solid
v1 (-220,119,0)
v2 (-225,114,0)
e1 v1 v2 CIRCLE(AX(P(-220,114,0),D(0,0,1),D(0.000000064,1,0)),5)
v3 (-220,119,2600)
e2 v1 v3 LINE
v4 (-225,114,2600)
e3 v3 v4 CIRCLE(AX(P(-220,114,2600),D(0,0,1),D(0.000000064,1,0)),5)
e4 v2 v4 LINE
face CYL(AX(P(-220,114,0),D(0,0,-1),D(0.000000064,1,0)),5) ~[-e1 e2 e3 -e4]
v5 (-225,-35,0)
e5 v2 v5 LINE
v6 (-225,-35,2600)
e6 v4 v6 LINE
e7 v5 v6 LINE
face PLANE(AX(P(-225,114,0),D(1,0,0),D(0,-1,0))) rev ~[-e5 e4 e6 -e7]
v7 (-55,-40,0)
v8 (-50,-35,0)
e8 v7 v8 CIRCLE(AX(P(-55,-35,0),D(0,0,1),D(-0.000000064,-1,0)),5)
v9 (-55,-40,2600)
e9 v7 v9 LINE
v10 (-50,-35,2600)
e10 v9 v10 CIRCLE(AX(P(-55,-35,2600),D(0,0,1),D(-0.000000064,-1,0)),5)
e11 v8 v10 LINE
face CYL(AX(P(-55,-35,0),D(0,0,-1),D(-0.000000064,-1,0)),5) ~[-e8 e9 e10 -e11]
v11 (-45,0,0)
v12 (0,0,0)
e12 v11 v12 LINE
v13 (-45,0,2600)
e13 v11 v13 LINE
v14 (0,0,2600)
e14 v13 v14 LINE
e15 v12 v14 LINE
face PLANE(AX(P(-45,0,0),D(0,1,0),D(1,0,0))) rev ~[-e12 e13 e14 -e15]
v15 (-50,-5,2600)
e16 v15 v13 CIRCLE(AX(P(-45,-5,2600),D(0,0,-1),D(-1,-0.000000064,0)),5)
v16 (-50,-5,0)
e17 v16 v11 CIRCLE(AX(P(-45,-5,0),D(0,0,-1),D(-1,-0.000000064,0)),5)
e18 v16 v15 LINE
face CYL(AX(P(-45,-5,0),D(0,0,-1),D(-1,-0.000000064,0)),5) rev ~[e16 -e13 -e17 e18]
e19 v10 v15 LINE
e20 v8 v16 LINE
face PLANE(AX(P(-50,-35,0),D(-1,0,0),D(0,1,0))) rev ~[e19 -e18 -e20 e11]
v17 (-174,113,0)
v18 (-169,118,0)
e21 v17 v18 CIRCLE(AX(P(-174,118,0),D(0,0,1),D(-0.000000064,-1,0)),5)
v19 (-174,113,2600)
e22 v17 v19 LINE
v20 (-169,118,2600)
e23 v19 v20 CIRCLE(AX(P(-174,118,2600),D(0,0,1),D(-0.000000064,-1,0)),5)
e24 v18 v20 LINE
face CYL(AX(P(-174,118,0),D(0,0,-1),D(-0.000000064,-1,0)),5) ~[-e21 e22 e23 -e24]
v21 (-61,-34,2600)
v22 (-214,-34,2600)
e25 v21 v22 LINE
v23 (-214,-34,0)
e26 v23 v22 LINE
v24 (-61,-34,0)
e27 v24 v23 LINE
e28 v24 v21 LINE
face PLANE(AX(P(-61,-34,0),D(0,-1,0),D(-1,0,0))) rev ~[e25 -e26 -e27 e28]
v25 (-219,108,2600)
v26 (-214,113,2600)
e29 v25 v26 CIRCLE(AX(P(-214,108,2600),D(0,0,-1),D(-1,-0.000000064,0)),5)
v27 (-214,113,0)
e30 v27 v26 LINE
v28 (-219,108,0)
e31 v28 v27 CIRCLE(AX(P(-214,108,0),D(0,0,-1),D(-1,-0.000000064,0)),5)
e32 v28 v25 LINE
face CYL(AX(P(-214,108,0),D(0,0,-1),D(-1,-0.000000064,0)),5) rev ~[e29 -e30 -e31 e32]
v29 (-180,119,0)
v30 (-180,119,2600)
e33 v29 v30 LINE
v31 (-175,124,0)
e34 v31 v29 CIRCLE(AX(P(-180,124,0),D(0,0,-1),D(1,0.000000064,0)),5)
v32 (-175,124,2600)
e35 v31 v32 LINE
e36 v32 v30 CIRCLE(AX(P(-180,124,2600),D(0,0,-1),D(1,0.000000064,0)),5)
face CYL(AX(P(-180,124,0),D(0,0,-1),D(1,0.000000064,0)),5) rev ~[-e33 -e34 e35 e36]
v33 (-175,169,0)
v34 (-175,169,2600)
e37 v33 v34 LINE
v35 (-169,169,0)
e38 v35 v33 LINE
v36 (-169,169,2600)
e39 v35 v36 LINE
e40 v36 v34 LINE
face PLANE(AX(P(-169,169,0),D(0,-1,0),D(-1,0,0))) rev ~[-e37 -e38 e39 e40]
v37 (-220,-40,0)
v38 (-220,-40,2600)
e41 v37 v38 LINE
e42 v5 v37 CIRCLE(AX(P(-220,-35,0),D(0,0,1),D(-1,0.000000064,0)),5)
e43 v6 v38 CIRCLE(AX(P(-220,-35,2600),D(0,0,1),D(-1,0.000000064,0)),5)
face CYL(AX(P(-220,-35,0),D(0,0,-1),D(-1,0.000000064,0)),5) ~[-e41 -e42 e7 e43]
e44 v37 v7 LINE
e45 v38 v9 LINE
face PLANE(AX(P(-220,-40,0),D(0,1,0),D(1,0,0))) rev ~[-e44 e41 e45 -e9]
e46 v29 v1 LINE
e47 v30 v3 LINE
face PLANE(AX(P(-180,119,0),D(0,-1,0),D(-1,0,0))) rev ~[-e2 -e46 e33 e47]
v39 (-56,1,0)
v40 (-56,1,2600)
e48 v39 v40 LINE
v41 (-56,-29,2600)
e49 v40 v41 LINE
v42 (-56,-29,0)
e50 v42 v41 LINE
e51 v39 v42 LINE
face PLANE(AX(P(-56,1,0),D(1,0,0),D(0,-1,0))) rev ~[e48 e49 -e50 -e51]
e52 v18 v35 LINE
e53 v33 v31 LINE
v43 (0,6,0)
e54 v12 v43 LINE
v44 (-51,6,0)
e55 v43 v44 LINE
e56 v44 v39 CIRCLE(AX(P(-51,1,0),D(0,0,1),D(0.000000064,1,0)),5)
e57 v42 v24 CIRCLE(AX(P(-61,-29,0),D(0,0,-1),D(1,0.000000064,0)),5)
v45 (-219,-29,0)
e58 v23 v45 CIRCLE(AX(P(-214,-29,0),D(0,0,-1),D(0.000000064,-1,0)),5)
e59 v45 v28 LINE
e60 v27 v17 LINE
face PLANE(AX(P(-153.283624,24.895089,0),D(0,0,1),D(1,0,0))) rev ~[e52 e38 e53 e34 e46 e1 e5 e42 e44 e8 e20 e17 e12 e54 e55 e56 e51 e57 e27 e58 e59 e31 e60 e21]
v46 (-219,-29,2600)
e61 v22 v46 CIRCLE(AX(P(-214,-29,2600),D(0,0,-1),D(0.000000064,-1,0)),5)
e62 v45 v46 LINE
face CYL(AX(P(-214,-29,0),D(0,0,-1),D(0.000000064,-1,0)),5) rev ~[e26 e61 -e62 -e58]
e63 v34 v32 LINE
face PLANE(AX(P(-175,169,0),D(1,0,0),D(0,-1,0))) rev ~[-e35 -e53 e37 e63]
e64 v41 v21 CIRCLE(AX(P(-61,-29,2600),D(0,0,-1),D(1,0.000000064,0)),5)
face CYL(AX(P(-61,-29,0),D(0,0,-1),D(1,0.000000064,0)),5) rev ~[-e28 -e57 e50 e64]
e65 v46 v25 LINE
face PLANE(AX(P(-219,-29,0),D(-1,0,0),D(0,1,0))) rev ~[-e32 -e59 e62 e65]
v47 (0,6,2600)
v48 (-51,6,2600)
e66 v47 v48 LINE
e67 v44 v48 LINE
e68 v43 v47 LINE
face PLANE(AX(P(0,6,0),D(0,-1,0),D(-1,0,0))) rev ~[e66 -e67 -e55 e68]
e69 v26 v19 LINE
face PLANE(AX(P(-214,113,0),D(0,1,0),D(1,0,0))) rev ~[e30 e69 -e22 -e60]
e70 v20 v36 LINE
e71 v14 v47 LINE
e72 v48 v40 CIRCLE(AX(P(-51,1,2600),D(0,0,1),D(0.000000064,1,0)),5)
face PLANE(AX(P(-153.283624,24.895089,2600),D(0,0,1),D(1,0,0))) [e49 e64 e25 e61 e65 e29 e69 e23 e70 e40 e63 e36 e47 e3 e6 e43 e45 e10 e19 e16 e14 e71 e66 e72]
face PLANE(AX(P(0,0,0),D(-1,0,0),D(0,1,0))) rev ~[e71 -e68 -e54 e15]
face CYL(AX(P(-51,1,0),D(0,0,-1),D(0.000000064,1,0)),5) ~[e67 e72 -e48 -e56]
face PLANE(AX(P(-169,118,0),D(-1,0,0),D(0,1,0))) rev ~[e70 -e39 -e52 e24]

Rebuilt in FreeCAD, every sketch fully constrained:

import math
import FreeCAD as App
import Part
import Sketcher
Q = App.Units.Quantity

doc = App.newDocument("Part")
body = doc.addObject("PartDesign::Body", "Body")

# Sketch on XY plane
sketch1 = body.newObject("Sketcher::SketchObject", "Sketch")
sketch1.AttachmentSupport = (doc.getObject("XY_Plane"), [""])
sketch1.MapMode = "FlatFace"
sketch1.addGeometry([
    Part.LineSegment(App.Vector(-45, 0, 0), App.Vector(0, 0, 0)),  # 0
    Part.LineSegment(App.Vector(0, 0, 0), App.Vector(0, 6, 0)),  # 1
    Part.LineSegment(App.Vector(0, 6, 0), App.Vector(-51, 6, 0)),  # 2
    Part.ArcOfCircle(Part.Circle(App.Vector(-51, 1, 0), App.Vector(0, 0, 1), 5), math.radians(90), math.radians(180)),  # 3
    Part.LineSegment(App.Vector(-56, 1, 0), App.Vector(-56, -29, 0)),  # 4
    Part.ArcOfCircle(Part.Circle(App.Vector(-61, -29, 0), App.Vector(0, 0, 1), 5), math.radians(-90), math.radians(0)),  # 5
    Part.LineSegment(App.Vector(-61, -34, 0), App.Vector(-214, -34, 0)),  # 6
    Part.ArcOfCircle(Part.Circle(App.Vector(-214, -29, 0), App.Vector(0, 0, 1), 5), math.radians(180), math.radians(270)),  # 7
    Part.LineSegment(App.Vector(-219, -29, 0), App.Vector(-219, 108, 0)),  # 8
    Part.ArcOfCircle(Part.Circle(App.Vector(-214, 108, 0), App.Vector(0, 0, 1), 5), math.radians(90), math.radians(180)),  # 9
    Part.LineSegment(App.Vector(-214, 113, 0), App.Vector(-174, 113, 0)),  # 10
    Part.ArcOfCircle(Part.Circle(App.Vector(-174, 118, 0), App.Vector(0, 0, 1), 5), math.radians(-90), math.radians(0)),  # 11
    Part.LineSegment(App.Vector(-169, 118, 0), App.Vector(-169, 169, 0)),  # 12
    Part.LineSegment(App.Vector(-169, 169, 0), App.Vector(-175, 169, 0)),  # 13
    Part.LineSegment(App.Vector(-175, 169, 0), App.Vector(-175, 124, 0)),  # 14
    Part.ArcOfCircle(Part.Circle(App.Vector(-180, 124, 0), App.Vector(0, 0, 1), 5), math.radians(-90), math.radians(0)),  # 15
    Part.LineSegment(App.Vector(-180, 119, 0), App.Vector(-220, 119, 0)),  # 16
    Part.ArcOfCircle(Part.Circle(App.Vector(-220, 114, 0), App.Vector(0, 0, 1), 5), math.radians(90), math.radians(180)),  # 17
    Part.LineSegment(App.Vector(-225, 114, 0), App.Vector(-225, -35, 0)),  # 18
    Part.ArcOfCircle(Part.Circle(App.Vector(-220, -35, 0), App.Vector(0, 0, 1), 5), math.radians(180), math.radians(270)),  # 19
    Part.LineSegment(App.Vector(-220, -40, 0), App.Vector(-55, -40, 0)),  # 20
    Part.ArcOfCircle(Part.Circle(App.Vector(-55, -35, 0), App.Vector(0, 0, 1), 5), math.radians(-90), math.radians(0)),  # 21
    Part.LineSegment(App.Vector(-50, -35, 0), App.Vector(-50, -5, 0)),  # 22
    Part.ArcOfCircle(Part.Circle(App.Vector(-45, -5, 0), App.Vector(0, 0, 1), 5), math.radians(90), math.radians(180)),  # 23
], False)
sketch1.addConstraint([
    Sketcher.Constraint("Coincident", 0, 2, 1, 1),
    Sketcher.Constraint("Coincident", 1, 2, 2, 1),
    Sketcher.Constraint("Tangent", 2, 2, 3, 1),
    Sketcher.Constraint("Tangent", 3, 2, 4, 1),
    Sketcher.Constraint("Tangent", 4, 2, 5, 2),
    Sketcher.Constraint("Tangent", 5, 1, 6, 1),
    Sketcher.Constraint("Tangent", 6, 2, 7, 2),
    Sketcher.Constraint("Tangent", 7, 1, 8, 1),
    Sketcher.Constraint("Tangent", 8, 2, 9, 2),
    Sketcher.Constraint("Tangent", 9, 1, 10, 1),
    Sketcher.Constraint("Tangent", 10, 2, 11, 1),
    Sketcher.Constraint("Tangent", 11, 2, 12, 1),
    Sketcher.Constraint("Coincident", 12, 2, 13, 1),
    Sketcher.Constraint("Coincident", 13, 2, 14, 1),
    Sketcher.Constraint("Tangent", 14, 2, 15, 2),
    Sketcher.Constraint("Tangent", 15, 1, 16, 1),
    Sketcher.Constraint("Tangent", 16, 2, 17, 1),
    Sketcher.Constraint("Tangent", 17, 2, 18, 1),
    Sketcher.Constraint("Tangent", 18, 2, 19, 1),
    Sketcher.Constraint("Tangent", 19, 2, 20, 1),
    Sketcher.Constraint("Tangent", 20, 2, 21, 1),
    Sketcher.Constraint("Tangent", 21, 2, 22, 1),
    Sketcher.Constraint("Tangent", 22, 2, 23, 2),
    Sketcher.Constraint("Tangent", 23, 1, 0, 1),
    Sketcher.Constraint("Horizontal", 0),
    Sketcher.Constraint("Vertical", 1),
    Sketcher.Constraint("Horizontal", 2),
    Sketcher.Constraint("Vertical", 4),
    Sketcher.Constraint("Horizontal", 6),
    Sketcher.Constraint("Vertical", 8),
    Sketcher.Constraint("Horizontal", 10),
    Sketcher.Constraint("Vertical", 12),
    Sketcher.Constraint("Horizontal", 13),
    Sketcher.Constraint("Vertical", 14),
    Sketcher.Constraint("Horizontal", 16),
    Sketcher.Constraint("Vertical", 18),
    Sketcher.Constraint("Horizontal", 20),
    Sketcher.Constraint("Vertical", 22),
    Sketcher.Constraint("Coincident", 0, 2, -1, 1),
    Sketcher.Constraint("Equal", 3, 5),
    Sketcher.Constraint("Equal", 5, 7),
    Sketcher.Constraint("Equal", 7, 9),
    Sketcher.Constraint("Equal", 9, 11),
    Sketcher.Constraint("Equal", 11, 15),
    Sketcher.Constraint("Equal", 15, 17),
    Sketcher.Constraint("Equal", 17, 19),
    Sketcher.Constraint("Equal", 19, 21),
    Sketcher.Constraint("Equal", 21, 23),
    Sketcher.Constraint("Equal", 10, 16),
    Sketcher.Constraint("Equal", 13, 1),
    Sketcher.Constraint("Equal", 2, 12),
    Sketcher.Constraint("Equal", 0, 14),
    Sketcher.Constraint("Equal", 4, 22),
    Sketcher.Constraint("Radius", 3, Q("5 mm")),
    Sketcher.Constraint("DistanceX", 0, 1, 0, 2, Q("45 mm")),
    Sketcher.Constraint("DistanceX", 2, 2, 2, 1, Q("51 mm")),
    Sketcher.Constraint("DistanceX", 6, 2, 6, 1, Q("153 mm")),
    Sketcher.Constraint("DistanceX", 10, 1, 10, 2, Q("40 mm")),
    Sketcher.Constraint("DistanceX", 13, 2, 13, 1, Q("6 mm")),
    Sketcher.Constraint("DistanceY", 4, 2, 4, 1, Q("30 mm")),
    Sketcher.Constraint("DistanceY", 8, 1, 8, 2, Q("137 mm")),
])
pad1 = body.newObject("PartDesign::Pad", "Pad")
pad1.Profile = sketch1
pad1.Length = 2600

doc.recompute()
